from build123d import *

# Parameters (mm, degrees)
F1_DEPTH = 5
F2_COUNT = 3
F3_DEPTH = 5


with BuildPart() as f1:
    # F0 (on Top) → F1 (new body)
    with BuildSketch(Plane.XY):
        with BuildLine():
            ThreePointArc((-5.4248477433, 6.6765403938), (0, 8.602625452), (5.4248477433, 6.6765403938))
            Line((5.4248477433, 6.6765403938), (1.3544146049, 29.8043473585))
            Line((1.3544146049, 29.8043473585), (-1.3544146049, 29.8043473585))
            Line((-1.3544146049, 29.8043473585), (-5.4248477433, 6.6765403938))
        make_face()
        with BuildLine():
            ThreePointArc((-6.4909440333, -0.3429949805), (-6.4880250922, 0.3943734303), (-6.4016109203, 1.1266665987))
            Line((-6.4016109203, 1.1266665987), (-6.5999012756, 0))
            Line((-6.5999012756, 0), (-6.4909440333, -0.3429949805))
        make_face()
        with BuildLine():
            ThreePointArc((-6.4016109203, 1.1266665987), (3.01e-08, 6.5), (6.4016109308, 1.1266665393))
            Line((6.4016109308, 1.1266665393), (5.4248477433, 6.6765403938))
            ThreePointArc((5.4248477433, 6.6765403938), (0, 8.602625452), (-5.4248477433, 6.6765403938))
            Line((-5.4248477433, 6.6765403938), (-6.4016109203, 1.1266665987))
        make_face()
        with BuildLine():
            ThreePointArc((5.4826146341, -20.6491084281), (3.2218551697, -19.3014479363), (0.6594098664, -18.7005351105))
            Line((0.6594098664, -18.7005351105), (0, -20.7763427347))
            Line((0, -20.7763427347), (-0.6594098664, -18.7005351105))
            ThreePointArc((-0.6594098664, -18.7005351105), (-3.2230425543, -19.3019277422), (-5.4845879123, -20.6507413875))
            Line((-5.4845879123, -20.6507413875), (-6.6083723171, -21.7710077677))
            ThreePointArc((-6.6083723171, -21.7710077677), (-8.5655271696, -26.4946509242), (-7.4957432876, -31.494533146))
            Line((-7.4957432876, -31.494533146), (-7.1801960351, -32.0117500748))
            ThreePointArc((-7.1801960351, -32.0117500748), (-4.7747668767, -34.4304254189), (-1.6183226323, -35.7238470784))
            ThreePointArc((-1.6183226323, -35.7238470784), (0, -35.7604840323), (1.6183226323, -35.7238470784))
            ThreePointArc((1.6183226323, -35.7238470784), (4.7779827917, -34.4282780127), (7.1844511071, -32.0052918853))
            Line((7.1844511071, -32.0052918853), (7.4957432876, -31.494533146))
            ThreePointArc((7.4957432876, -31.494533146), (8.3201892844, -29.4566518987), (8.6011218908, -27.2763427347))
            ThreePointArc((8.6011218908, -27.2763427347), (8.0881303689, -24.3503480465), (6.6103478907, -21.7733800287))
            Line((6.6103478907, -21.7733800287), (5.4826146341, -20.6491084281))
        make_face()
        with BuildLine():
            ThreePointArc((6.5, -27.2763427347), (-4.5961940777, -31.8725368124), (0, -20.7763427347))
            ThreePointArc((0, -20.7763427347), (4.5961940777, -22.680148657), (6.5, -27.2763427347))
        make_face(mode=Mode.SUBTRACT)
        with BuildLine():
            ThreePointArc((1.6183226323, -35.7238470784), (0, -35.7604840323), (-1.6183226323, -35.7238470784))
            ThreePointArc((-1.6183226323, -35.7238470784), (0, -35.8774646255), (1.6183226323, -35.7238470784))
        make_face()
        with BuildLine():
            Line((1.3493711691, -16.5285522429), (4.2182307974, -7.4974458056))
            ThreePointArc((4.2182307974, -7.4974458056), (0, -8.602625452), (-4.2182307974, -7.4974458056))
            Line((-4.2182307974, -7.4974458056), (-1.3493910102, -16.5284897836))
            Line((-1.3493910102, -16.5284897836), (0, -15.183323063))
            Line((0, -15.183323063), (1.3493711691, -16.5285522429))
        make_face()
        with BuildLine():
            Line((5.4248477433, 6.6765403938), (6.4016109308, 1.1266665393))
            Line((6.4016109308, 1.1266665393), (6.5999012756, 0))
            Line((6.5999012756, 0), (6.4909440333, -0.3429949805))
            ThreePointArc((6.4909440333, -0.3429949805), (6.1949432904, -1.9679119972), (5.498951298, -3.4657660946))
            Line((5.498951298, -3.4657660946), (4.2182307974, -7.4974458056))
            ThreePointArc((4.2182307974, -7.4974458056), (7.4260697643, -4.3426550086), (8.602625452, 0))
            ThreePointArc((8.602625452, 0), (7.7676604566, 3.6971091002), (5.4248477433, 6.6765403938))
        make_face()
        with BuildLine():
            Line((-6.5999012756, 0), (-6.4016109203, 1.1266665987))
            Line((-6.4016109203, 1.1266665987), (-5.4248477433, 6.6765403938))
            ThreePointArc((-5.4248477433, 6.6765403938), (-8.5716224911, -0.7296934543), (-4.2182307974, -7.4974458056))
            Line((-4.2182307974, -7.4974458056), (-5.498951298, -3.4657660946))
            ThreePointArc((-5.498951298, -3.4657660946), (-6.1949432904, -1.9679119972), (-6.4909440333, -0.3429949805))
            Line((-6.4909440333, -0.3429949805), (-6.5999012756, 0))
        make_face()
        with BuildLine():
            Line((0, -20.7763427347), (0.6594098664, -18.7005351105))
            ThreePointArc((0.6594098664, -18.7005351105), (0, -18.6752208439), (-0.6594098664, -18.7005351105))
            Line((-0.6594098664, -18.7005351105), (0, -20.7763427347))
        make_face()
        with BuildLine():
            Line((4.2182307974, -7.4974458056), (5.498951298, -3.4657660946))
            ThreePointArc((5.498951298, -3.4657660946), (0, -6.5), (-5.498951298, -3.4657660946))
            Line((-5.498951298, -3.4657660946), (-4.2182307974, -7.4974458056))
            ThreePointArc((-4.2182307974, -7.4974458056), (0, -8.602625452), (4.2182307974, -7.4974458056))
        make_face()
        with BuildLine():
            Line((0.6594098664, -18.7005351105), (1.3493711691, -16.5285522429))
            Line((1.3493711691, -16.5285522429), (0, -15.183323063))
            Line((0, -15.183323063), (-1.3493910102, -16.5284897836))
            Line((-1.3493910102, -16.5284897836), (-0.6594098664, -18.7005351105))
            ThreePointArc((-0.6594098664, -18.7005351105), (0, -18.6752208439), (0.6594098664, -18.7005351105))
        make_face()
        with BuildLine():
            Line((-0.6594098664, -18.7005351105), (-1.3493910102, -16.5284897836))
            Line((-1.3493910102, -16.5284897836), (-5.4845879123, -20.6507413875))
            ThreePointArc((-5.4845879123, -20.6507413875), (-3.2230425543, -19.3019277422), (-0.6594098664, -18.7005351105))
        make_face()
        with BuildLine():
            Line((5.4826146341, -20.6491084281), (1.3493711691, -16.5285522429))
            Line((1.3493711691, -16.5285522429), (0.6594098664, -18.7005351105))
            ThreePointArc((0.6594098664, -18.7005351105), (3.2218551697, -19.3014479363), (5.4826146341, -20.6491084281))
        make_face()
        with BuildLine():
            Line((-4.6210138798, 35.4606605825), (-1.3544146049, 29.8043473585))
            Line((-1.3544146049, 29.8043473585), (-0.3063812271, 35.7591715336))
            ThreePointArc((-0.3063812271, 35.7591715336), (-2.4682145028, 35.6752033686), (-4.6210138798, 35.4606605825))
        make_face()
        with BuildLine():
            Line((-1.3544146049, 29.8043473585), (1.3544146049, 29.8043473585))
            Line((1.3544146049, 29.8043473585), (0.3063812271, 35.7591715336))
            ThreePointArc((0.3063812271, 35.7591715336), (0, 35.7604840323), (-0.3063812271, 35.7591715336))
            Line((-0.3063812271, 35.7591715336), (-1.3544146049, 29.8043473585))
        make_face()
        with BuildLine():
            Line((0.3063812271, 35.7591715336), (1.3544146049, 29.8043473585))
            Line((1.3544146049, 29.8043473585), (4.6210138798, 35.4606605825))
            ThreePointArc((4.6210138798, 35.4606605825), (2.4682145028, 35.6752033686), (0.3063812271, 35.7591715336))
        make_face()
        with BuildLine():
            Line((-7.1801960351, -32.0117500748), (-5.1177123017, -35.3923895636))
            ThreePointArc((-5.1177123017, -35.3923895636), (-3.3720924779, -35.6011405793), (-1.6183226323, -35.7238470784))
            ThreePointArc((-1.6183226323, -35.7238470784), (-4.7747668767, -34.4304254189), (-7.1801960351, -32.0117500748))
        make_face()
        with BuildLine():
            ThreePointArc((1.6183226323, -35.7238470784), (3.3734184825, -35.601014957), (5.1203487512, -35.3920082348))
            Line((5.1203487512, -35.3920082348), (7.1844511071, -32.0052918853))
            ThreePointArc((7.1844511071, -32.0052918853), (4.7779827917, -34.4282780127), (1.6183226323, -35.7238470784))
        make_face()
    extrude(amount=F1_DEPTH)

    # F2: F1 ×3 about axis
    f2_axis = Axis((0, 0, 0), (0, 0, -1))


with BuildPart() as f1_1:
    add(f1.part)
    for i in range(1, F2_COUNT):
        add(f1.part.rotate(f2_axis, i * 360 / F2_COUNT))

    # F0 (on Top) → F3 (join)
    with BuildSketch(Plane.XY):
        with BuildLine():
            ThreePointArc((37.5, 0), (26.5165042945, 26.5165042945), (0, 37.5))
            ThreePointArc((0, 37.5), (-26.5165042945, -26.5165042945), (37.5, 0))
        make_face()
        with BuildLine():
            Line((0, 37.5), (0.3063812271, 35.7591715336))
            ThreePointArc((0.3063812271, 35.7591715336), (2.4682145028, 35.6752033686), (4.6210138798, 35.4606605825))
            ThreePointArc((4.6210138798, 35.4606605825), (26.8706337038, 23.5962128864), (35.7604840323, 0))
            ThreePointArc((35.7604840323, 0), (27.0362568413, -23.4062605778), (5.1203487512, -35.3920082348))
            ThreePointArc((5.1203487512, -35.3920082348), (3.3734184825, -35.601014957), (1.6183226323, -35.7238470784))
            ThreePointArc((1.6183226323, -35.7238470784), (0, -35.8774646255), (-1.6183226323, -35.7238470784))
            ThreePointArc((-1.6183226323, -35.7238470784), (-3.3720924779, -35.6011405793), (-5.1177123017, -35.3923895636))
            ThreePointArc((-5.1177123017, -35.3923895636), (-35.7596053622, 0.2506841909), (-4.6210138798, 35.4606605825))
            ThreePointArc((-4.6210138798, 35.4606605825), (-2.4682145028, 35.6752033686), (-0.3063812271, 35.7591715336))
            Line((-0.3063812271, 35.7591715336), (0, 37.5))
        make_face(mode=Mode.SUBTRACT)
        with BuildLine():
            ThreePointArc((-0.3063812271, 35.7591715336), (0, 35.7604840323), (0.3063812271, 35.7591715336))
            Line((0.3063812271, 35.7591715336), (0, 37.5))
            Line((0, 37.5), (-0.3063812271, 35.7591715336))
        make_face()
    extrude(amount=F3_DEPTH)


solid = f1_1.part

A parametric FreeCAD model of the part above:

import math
import FreeCAD as App
import Part
import Sketcher

doc = App.newDocument("Part")
body = doc.addObject("PartDesign::Body", "Body")

# Sketch on XY plane
sketch1 = doc.addObject("Sketcher::SketchObject", "Sketch")
body.addObject(sketch1)
sketch1.AttachmentSupport = (doc.XY_Plane, [""])
sketch1.MapMode = "FlatFace"
sketch1.addGeometry([
    Part.LineSegment(App.Vector(5.424848, 6.67654, 0), App.Vector(1.354415, 29.804347, 0)),  # 0
    Part.LineSegment(App.Vector(1.354415, 29.804347, 0), App.Vector(4.621014, 35.460661, 0)),  # 1
    Part.ArcOfCircle(Part.Circle(App.Vector(0, 0, 0), App.Vector(0, 0, 1), 35.760484), math.radians(82.575407), math.radians(89.509107)),  # 2
    Part.ArcOfCircle(Part.Circle(App.Vector(0, -0.000001, 0), App.Vector(0, 0, 1), 35.760485), math.radians(89.509107), math.radians(90.490893)),  # 3
    Part.ArcOfCircle(Part.Circle(App.Vector(0, 0, 0), App.Vector(0, 0, 1), 35.760484), math.radians(90.490893), math.radians(97.424593)),  # 4
    Part.LineSegment(App.Vector(-4.621014, 35.460661, 0), App.Vector(-1.354415, 29.804347, 0)),  # 5
    Part.LineSegment(App.Vector(-1.354415, 29.804347, 0), App.Vector(-5.424848, 6.67654, 0)),  # 6
    Part.ArcOfCircle(Part.Circle(App.Vector(0, 0, 0), App.Vector(0, 0, 1), 8.602625), math.radians(129.094679), math.radians(240.63692)),  # 7
    Part.LineSegment(App.Vector(-4.218231, -7.497446, 0), App.Vector(-1.349391, -16.52849, 0)),  # 8
    Part.LineSegment(App.Vector(-1.349391, -16.52849, 0), App.Vector(-5.484588, -20.650741, 0)),  # 9
    Part.LineSegment(App.Vector(-5.484588, -20.650741, 0), App.Vector(-6.608372, -21.771008, 0)),  # 10
    Part.ArcOfCircle(Part.Circle(App.Vector(0, -27.276343, 0), App.Vector(0, 0, 1), 8.601122), math.radians(140.202832), math.radians(209.368406)),  # 11
    Part.LineSegment(App.Vector(-7.495743, -31.494533, 0), App.Vector(-7.180196, -32.01175, 0)),  # 12
    Part.LineSegment(App.Vector(-7.180196, -32.01175, 0), App.Vector(-5.117712, -35.39239, 0)),  # 13
    Part.ArcOfCircle(Part.Circle(App.Vector(0, 0, 0), App.Vector(0, 0, 1), 35.760484), math.radians(-98.227896), math.radians(-92.593777)),  # 14
    Part.ArcOfCircle(Part.Circle(App.Vector(0, -27.276343, 0), App.Vector(0, 0, 1), 8.601122), math.radians(-100.844986), math.radians(-79.155014)),  # 15
    Part.ArcOfCircle(Part.Circle(App.Vector(0, 0, 0), App.Vector(0, 0, 1), 35.760484), math.radians(-87.406223), math.radians(-81.767835)),  # 16
    Part.LineSegment(App.Vector(5.120349, -35.392008, 0), App.Vector(7.184451, -32.005292, 0)),  # 17
    Part.LineSegment(App.Vector(7.184451, -32.005292, 0), App.Vector(7.495743, -31.494533, 0)),  # 18
    Part.ArcOfCircle(Part.Circle(App.Vector(0, -27.276343, 0), App.Vector(0, 0, 1), 8.601122), math.radians(-29.368406), math.radians(0)),  # 19
    Part.ArcOfCircle(Part.Circle(App.Vector(0, -27.276343, 0), App.Vector(0, 0, 1), 8.601122), math.radians(0), math.radians(39.776604)),  # 20
    Part.LineSegment(App.Vector(6.610348, -21.77338, 0), App.Vector(5.482615, -20.649108, 0)),  # 21
    Part.LineSegment(App.Vector(5.482615, -20.649108, 0), App.Vector(1.349371, -16.528552, 0)),  # 22
    Part.LineSegment(App.Vector(1.349371, -16.528552, 0), App.Vector(4.218231, -7.497446, 0)),  # 23
    Part.ArcOfCircle(Part.Circle(App.Vector(0, 0, 0), App.Vector(0, 0, 1), 8.602625), math.radians(-60.63692), math.radians(0)),  # 24
    Part.ArcOfCircle(Part.Circle(App.Vector(0, 0, 0), App.Vector(0, 0, 1), 8.602625), math.radians(0), math.radians(50.905321)),  # 25
    Part.ArcOfCircle(Part.Circle(App.Vector(0, 0, 0), App.Vector(0, 0, 1), 6.5), math.radians(-176.975185), math.radians(-147.778431)),  # 26
    Part.ArcOfCircle(Part.Circle(App.Vector(0, 0, 0), App.Vector(0, 0, 1), 6.5), math.radians(170.018318), math.radians(183.024815)),  # 27
    Part.ArcOfCircle(Part.Circle(App.Vector(0, 0, 0), App.Vector(0, 0, 1), 6.5), math.radians(9.981682), math.radians(170.018318)),  # 28
    Part.LineSegment(App.Vector(6.401611, 1.126667, 0), App.Vector(6.599901, 0, 0)),  # 29
    Part.LineSegment(App.Vector(6.599901, 0, 0), App.Vector(6.490944, -0.342995, 0)),  # 30
    Part.ArcOfCircle(Part.Circle(App.Vector(0, 0, 0), App.Vector(0, 0, 1), 6.5), math.radians(-32.221569), math.radians(-3.024815)),  # 31
    Part.ArcOfCircle(Part.Circle(App.Vector(0, 0, 0), App.Vector(0, 0, 1), 6.5), math.radians(-147.778431), math.radians(-32.221569)),  # 32
    Part.ArcOfCircle(Part.Circle(App.Vector(0, -27.276343, 0), App.Vector(0, 0, 1), 6.5), math.radians(0), math.radians(90)),  # 33
    Part.ArcOfCircle(Part.Circle(App.Vector(0, -27.276343, 0), App.Vector(0, 0, 1), 6.5), math.radians(90), math.radians(360)),  # 34
], False)
sketch1.addConstraint([
    Sketcher.Constraint("Coincident", 0, 2, 1, 1),
    Sketcher.Constraint("Coincident", 1, 2, 2, 1),
    Sketcher.Constraint("Coincident", 2, 2, 3, 1),
    Sketcher.Constraint("Coincident", 3, 2, 4, 1),
    Sketcher.Constraint("Coincident", 4, 2, 5, 1),
    Sketcher.Constraint("Coincident", 5, 2, 6, 1),
    Sketcher.Constraint("Coincident", 6, 2, 7, 1),
    Sketcher.Constraint("Coincident", 7, 2, 8, 1),
    Sketcher.Constraint("Coincident", 8, 2, 9, 1),
    Sketcher.Constraint("Coincident", 9, 2, 10, 1),
    Sketcher.Constraint("Coincident", 10, 2, 11, 1),
    Sketcher.Constraint("Coincident", 11, 2, 12, 1),
    Sketcher.Constraint("Coincident", 12, 2, 13, 1),
    Sketcher.Constraint("Coincident", 13, 2, 14, 1),
    Sketcher.Constraint("Coincident", 14, 2, 15, 1),
    Sketcher.Constraint("Coincident", 15, 2, 16, 1),
    Sketcher.Constraint("Coincident", 16, 2, 17, 1),
    Sketcher.Constraint("Coincident", 17, 2, 18, 1),
    Sketcher.Constraint("Coincident", 18, 2, 19, 1),
    Sketcher.Constraint("Coincident", 19, 2, 20, 1),
    Sketcher.Constraint("Coincident", 20, 2, 21, 1),
    Sketcher.Constraint("Coincident", 21, 2, 22, 1),
    Sketcher.Constraint("Coincident", 22, 2, 23, 1),
    Sketcher.Constraint("Coincident", 23, 2, 24, 1),
    Sketcher.Constraint("Coincident", 24, 2, 25, 1),
    Sketcher.Constraint("Coincident", 25, 2, 0, 1),
    Sketcher.Constraint("Coincident", 26, 1, 27, 2),
    Sketcher.Constraint("Coincident", 27, 1, 28, 2),
    Sketcher.Constraint("Coincident", 28, 1, 29, 1),
    Sketcher.Constraint("Coincident", 29, 2, 30, 1),
    Sketcher.Constraint("Coincident", 30, 2, 31, 2),
    Sketcher.Constraint("Coincident", 31, 1, 32, 2),
    Sketcher.Constraint("Coincident", 32, 1, 26, 2),
    Sketcher.Constraint("Coincident", 33, 1, 34, 2),
    Sketcher.Constraint("Coincident", 34, 1, 33, 2),
    Sketcher.Constraint("Coincident", 2, 3, -1, 1),
    Sketcher.Constraint("Coincident", 3, 3, -1, 1),
    Sketcher.Constraint("Coincident", 4, 3, -1, 1),
    Sketcher.Constraint("Coincident", 7, 3, -1, 1),
    Sketcher.Constraint("Coincident", 14, 3, -1, 1),
    Sketcher.Constraint("Coincident", 16, 3, -1, 1),
    Sketcher.Constraint("Coincident", 24, 3, -1, 1),
    Sketcher.Constraint("Coincident", 25, 3, -1, 1),
    Sketcher.Constraint("Coincident", 26, 3, -1, 1),
    Sketcher.Constraint("Coincident", 27, 3, -1, 1),
    Sketcher.Constraint("Coincident", 28, 3, -1, 1),
    Sketcher.Constraint("Coincident", 31, 3, -1, 1),
    Sketcher.Constraint("Coincident", 32, 3, -1, 1),
    Sketcher.Constraint("Coincident", 15, 3, 11, 3),
    Sketcher.Constraint("Coincident", 19, 3, 11, 3),
    Sketcher.Constraint("Coincident", 20, 3, 11, 3),
    Sketcher.Constraint("Coincident", 33, 3, 11, 3),
    Sketcher.Constraint("PointOnObject", 11, 3, -2),
    Sketcher.Constraint("PointOnObject", 34, 3, -2),
    Sketcher.Constraint("PointOnObject", 24, 2, -1),
    Sketcher.Constraint("PointOnObject", 29, 2, -1),
    Sketcher.Constraint("PointOnObject", 34, 1, -2),
    Sketcher.Constraint("Radius", 26, 6.5),
    Sketcher.Constraint("Radius", 33, 6.5),
    Sketcher.Constraint("Radius", 11, 8.601122),
    Sketcher.Constraint("Radius", 15, 8.601122),
    Sketcher.Constraint("Radius", 19, 8.601122),
    Sketcher.Constraint("Radius", 2, 35.760484),
    Sketcher.Constraint("Radius", 7, 8.602625),
    Sketcher.Constraint("Radius", 14, 35.760484),
    Sketcher.Constraint("Radius", 16, 35.760484),
    Sketcher.Constraint("Radius", 24, 8.602625),
    Sketcher.Constraint("DistanceX", -1, 1, 29, 2, 6.599901),
    Sketcher.Constraint("DistanceX", 0, 2, 1, 2, 3.266599),
    Sketcher.Constraint("DistanceX", 4, 2, 5, 2, 3.266599),
    Sketcher.Constraint("DistanceY", 19, 3, 9, 2, 6.625601),
    Sketcher.Constraint("Distance", 0, 23.483268),
    Sketcher.Constraint("Distance", 1, 6.531811),
    Sketcher.Constraint("Distance", 5, 6.531811),
    Sketcher.Constraint("Distance", 6, 23.483268),
    Sketcher.Constraint("Distance", 8, 9.475758),
    Sketcher.Constraint("Distance", 13, 3.960122),
    Sketcher.Constraint("Distance", 21, 1.59241),
    Sketcher.Constraint("DistanceY", -1, 1, 1, 2, 35.460661),
    Sketcher.Constraint("DistanceX", -1, 1, 2, 2, 0.306381),
    Sketcher.Constraint("DistanceX", 3, 2, -1, 1, 0.306381),
    Sketcher.Constraint("DistanceY", -1, 1, 4, 2, 35.460661),
    Sketcher.Constraint("DistanceX", 7, 2, -1, 1, 4.218231),
    Sketcher.Constraint("DistanceX", 8, 2, -1, 1, 1.349391),
    Sketcher.Constraint("DistanceY", 9, 2, -1, 1, 20.650741),
    Sketcher.Constraint("DistanceY", 12, 2, -1, 1, 32.01175),
    Sketcher.Constraint("DistanceY", 13, 2, -1, 1, 35.39239),
    Sketcher.Constraint("DistanceX", -1, 1, 16, 2, 5.120349),
    Sketcher.Constraint("DistanceX", -1, 1, 17, 2, 7.184451),
    Sketcher.Constraint("DistanceY", 17, 2, -1, 1, 32.005292),
    Sketcher.Constraint("DistanceY", 20, 2, -1, 1, 21.77338),
    Sketcher.Constraint("DistanceY", 21, 2, -1, 1, 20.649108),
    Sketcher.Constraint("DistanceX", -1, 1, 22, 2, 1.349371),
    Sketcher.Constraint("DistanceX", -1, 1, 23, 2, 4.218231),
    Sketcher.Constraint("DistanceX", 27, 1, -1, 1, 6.401611),
    Sketcher.Constraint("DistanceX", -1, 1, 28, 1, 6.401611),
    Sketcher.Constraint("DistanceX", -1, 1, 31, 1, 5.498951),
    Sketcher.Constraint("DistanceX", 32, 1, -1, 1, 5.498951),
    Sketcher.Constraint("DistanceX", 10, 2, 8, 2, 5.258981),
    Sketcher.Constraint("DistanceY", 11, 2, 15, 3, 4.21819),
    Sketcher.Constraint("DistanceY", 17, 2, 18, 2, 0.510759),
    Sketcher.Constraint("DistanceY", 18, 2, 19, 2, 4.21819),
    Sketcher.Constraint("DistanceX", 9, 2, 22, 2, 6.833959),
    Sketcher.Constraint("DistanceY", 9, 2, 22, 2, 4.122189),
    Sketcher.Constraint("DistanceY", 26, 1, 27, 1, 1.469662),
    Sketcher.Constraint("DistanceY", 30, 2, 28, 1, 1.469662),
    Sketcher.Constraint("DistanceY", 18, 2, 33, 1, 4.21819),
])
pad1 = doc.addObject("PartDesign::Pad", "Pad")
body.addObject(pad1)
pad1.Profile = sketch1
pad1.Length = 5
body2 = doc.addObject("PartDesign::Body", "Body001")
doc.recompute()

body2.BaseFeature = body
doc.recompute()

body3 = doc.addObject("PartDesign::Body", "Body002")
body3.BaseFeature = body
body3.Placement = App.Placement(App.Vector(0, 0, 0), App.Rotation(App.Vector(0, 0, -1), 120))
boolean = doc.addObject("PartDesign::Boolean", "Boolean")
body2.addObject(boolean)
boolean.Type = "Fuse"
boolean.addObjects([body3])
doc.recompute()

body.Placement = App.Placement(App.Vector(0, 0, 0), App.Rotation(App.Vector(0, 0, -1), 240))
boolean2 = doc.addObject("PartDesign::Boolean", "Boolean001")
body2.addObject(boolean2)
boolean2.Type = "Fuse"
boolean2.addObjects([body])

# Sketch on XY plane
sketch2 = doc.addObject("Sketcher::SketchObject", "Sketch001")
body2.addObject(sketch2)
sketch2.AttachmentSupport = (doc.getObject("XY_Plane001"), [""])
sketch2.MapMode = "FlatFace"
sketch2.addGeometry([
    Part.Circle(App.Vector(0, 0, 0), App.Vector(0, 0, 1), 37.5),  # 0
    Part.ArcOfCircle(Part.Circle(App.Vector(0, 0, 0), App.Vector(0, 0, 1), 35.8), math.radians(90.49), math.radians(97.42)),  # 1
    Part.ArcOfCircle(Part.Circle(App.Vector(0, 0, 0), App.Vector(0, 0, 1), 35.8), math.radians(89.51), math.radians(90.49)),  # 2
    Part.ArcOfCircle(Part.Circle(App.Vector(0, 0, 0), App.Vector(0, 0, 1), 35.8), math.radians(82.58), math.radians(89.51)),  # 3
    Part.ArcOfCircle(Part.Circle(App.Vector(0, 0, 0), App.Vector(0, 0, 1), 35.8), math.radians(-82), math.radians(83)),  # 4
    Part.ArcOfCircle(Part.Circle(App.Vector(0, 0, 0), App.Vector(0, 0, 1), 35.8), math.radians(-87.41), math.radians(-81.77)),  # 5
    Part.ArcOfCircle(Part.Circle(App.Vector(0, -27.3, 0), App.Vector(0, 0, 1), 8.6), math.radians(-101), math.radians(-79)),  # 6
    Part.ArcOfCircle(Part.Circle(App.Vector(0, 0, 0), App.Vector(0, 0, 1), 35.8), math.radians(-98.23), math.radians(-92.59)),  # 7
    Part.ArcOfCircle(Part.Circle(App.Vector(0, 0, 0), App.Vector(0, 0, 1), 35.8), math.radians(97), math.radians(262)),  # 8
], False)
sketch2.addConstraint([
    Sketcher.Constraint("Tangent", 1, 1, 2, 2),
    Sketcher.Constraint("Tangent", 2, 1, 3, 2),
    Sketcher.Constraint("Tangent", 3, 1, 4, 2),
    Sketcher.Constraint("Tangent", 4, 1, 5, 2),
    Sketcher.Constraint("Coincident", 5, 1, 6, 2),
    Sketcher.Constraint("Coincident", 6, 1, 7, 2),
    Sketcher.Constraint("Tangent", 7, 1, 8, 2),
    Sketcher.Constraint("Tangent", 8, 1, 1, 2),
    Sketcher.Constraint("Coincident", 0, 3, -1, 1),
    Sketcher.Constraint("Coincident", 1, 3, -1, 1),
    Sketcher.Constraint("Coincident", 3, 3, -1, 1),
    Sketcher.Constraint("Coincident", 5, 3, -1, 1),
    Sketcher.Constraint("Coincident", 7, 3, -1, 1),
    Sketcher.Constraint("PointOnObject", 6, 3, -2),
    Sketcher.Constraint("Horizontal", 1, 1, 2, 1),
    Sketcher.Constraint("Horizontal", 3, 1, 8, 1),
    Sketcher.Constraint("Diameter", 0, 75.0),
    Sketcher.Constraint("Radius", 6, 8.601122),
    Sketcher.Constraint("Radius", 1, 35.760484),
    Sketcher.Constraint("DistanceX", 1, 1, -1, 1, 0.306381),
    Sketcher.Constraint("DistanceY", -1, 1, 3, 1, 35.460661),
    Sketcher.Constraint("DistanceX", -1, 1, 4, 1, 5.120349),
    Sketcher.Constraint("DistanceY", 7, 1, -1, 1, 35.39239),
    Sketcher.Constraint("DistanceY", 5, 1, 4, 1, 0.331839),
])
pad2 = doc.addObject("PartDesign::Pad", "Pad001")
body2.addObject(pad2)
pad2.Profile = sketch2
pad2.Length = 5

doc.recompute()
